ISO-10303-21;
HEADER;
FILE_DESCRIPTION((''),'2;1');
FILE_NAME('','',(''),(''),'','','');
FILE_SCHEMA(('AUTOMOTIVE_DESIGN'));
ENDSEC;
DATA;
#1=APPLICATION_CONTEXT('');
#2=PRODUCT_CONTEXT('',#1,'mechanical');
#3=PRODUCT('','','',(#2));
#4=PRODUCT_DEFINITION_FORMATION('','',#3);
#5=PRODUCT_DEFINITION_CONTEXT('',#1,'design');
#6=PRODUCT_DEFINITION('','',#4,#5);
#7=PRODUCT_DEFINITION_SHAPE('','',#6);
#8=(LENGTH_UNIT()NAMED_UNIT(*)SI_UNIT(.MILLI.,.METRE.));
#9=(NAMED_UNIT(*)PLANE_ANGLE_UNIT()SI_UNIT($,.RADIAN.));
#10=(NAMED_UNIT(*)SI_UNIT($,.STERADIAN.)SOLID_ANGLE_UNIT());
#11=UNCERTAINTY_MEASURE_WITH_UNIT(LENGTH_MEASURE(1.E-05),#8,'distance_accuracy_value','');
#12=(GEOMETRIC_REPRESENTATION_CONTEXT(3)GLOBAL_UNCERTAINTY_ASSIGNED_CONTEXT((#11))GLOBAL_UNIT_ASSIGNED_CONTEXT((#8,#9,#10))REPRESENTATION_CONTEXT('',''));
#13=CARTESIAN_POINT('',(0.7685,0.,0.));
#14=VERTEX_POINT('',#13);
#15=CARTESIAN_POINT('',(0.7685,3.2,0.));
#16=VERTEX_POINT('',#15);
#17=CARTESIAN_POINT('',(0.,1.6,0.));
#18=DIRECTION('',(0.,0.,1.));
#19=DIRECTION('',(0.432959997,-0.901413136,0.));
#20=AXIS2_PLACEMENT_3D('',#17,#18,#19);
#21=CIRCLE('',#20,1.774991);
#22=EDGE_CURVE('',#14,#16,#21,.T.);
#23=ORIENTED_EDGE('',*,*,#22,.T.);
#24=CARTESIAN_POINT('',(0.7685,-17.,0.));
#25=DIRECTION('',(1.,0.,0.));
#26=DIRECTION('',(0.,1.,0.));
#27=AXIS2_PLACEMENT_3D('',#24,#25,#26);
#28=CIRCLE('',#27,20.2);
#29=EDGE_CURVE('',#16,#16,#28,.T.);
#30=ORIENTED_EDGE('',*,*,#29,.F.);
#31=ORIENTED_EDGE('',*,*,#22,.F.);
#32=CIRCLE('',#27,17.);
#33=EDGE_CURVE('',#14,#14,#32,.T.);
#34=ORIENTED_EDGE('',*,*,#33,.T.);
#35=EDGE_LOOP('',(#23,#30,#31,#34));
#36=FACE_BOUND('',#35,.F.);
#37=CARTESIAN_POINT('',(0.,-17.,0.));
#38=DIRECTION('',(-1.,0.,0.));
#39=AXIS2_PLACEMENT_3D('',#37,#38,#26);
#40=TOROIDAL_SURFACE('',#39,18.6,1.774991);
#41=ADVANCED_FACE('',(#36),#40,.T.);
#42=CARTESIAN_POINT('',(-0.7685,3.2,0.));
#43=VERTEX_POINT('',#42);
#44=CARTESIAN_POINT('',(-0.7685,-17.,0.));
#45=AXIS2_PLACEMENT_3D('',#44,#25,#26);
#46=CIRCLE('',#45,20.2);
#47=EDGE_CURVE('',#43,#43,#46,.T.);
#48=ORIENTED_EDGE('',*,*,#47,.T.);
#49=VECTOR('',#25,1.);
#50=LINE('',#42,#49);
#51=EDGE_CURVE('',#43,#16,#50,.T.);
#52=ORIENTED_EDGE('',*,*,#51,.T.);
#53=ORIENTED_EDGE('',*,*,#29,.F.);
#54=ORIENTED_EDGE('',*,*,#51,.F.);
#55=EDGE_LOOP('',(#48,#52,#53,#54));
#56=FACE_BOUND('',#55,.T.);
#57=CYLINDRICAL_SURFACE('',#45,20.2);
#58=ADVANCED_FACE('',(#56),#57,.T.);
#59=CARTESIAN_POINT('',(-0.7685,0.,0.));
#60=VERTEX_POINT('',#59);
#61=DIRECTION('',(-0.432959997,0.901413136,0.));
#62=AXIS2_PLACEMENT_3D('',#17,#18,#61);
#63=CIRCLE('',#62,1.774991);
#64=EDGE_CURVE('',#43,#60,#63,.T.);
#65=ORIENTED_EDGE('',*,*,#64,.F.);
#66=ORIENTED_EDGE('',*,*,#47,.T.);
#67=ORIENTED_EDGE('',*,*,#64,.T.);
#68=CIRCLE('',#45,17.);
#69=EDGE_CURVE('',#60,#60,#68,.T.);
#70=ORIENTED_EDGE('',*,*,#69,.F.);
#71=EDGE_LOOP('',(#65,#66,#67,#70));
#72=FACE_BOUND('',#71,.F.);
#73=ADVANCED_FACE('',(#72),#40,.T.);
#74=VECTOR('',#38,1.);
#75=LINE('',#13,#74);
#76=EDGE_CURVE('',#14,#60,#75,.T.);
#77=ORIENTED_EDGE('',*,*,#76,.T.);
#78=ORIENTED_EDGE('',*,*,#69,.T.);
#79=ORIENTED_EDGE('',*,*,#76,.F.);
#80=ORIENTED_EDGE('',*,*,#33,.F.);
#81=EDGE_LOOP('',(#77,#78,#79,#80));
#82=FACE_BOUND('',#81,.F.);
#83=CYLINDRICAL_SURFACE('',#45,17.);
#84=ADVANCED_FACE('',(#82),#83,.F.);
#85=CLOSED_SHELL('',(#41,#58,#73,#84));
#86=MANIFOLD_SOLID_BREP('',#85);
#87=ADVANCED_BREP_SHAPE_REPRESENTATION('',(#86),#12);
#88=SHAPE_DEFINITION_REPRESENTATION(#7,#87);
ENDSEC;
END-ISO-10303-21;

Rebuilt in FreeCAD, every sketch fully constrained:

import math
import FreeCAD as App
import Part
import Sketcher
Q = App.Units.Quantity

doc = App.newDocument("Part")
params = doc.addObject("Spreadsheet::Sheet", "Params")
for row, (alias, value) in enumerate([
    ("revolution_angle", "360 deg"),
], start=1):
    params.set(f"A{row}", alias)
    params.set(f"B{row}", "=" + value)
    params.setAlias(f"B{row}", alias)

body = doc.addObject("PartDesign::Body", "Body")

sketch1 = body.newObject("Sketcher::SketchObject", "Sketch")
sketch1.AttachmentSupport = (doc.getObject("XY_Plane"), [""])
sketch1.MapMode = "FlatFace"
sketch1.addGeometry([
    Part.ArcOfCircle(Part.Circle(App.Vector(0, 1.6, 0), App.Vector(0, 0, 1), 1.774991), math.radians(115.655556), math.radians(244.344444)),
    Part.LineSegment(App.Vector(-0.7685, 0, 0), App.Vector(0.7685, 0, 0)),
    Part.ArcOfCircle(Part.Circle(App.Vector(0, 1.6, 0), App.Vector(0, 0, 1), 1.774991), math.radians(-64.344444), math.radians(64.344444)),
    Part.LineSegment(App.Vector(0.7685, 3.2, 0), App.Vector(-0.7685, 3.2, 0)),
], False)
sketch1.addGeometry(Part.LineSegment(App.Vector(-0.7685, -17, 0), App.Vector(0.7685, -17, 0)), True)
sketch1.addConstraint([
    Sketcher.Constraint("Coincident", 0, 2, 1, 1),
    Sketcher.Constraint("Coincident", 1, 2, 2, 1),
    Sketcher.Constraint("Coincident", 2, 2, 3, 1),
    Sketcher.Constraint("Coincident", 3, 2, 0, 1),
    Sketcher.Constraint("Horizontal", 1),
    Sketcher.Constraint("Horizontal", 3),
    Sketcher.Constraint("Horizontal", 4),
    Sketcher.Constraint("Coincident", 2, 3, 0, 3),
    Sketcher.Constraint("Equal", 0, 2),
    Sketcher.Constraint("Symmetric", 0, 2, 1, 2, -1, 1),
    Sketcher.Constraint("Vertical", 1, 2, 2, 2),
    Sketcher.Constraint("Vertical", 3, 2, 4, 1),
    Sketcher.Constraint("Vertical", 2, 2, 4, 2),
    Sketcher.Constraint("Radius", 0, Q("1.775 mm")),
    Sketcher.Constraint("DistanceY", -1, 1, 0, 3, Q("1.6 mm")),
    Sketcher.Constraint("DistanceY", 4, 1, -1, 1, Q("17 mm")),
])
revolution = body.newObject("PartDesign::Revolution", "Revolution")
revolution.Profile = sketch1
revolution.ReferenceAxis = (sketch1, ["Axis0"])
revolution.setExpression("Angle", "Params.revolution_angle")

doc.recompute()
